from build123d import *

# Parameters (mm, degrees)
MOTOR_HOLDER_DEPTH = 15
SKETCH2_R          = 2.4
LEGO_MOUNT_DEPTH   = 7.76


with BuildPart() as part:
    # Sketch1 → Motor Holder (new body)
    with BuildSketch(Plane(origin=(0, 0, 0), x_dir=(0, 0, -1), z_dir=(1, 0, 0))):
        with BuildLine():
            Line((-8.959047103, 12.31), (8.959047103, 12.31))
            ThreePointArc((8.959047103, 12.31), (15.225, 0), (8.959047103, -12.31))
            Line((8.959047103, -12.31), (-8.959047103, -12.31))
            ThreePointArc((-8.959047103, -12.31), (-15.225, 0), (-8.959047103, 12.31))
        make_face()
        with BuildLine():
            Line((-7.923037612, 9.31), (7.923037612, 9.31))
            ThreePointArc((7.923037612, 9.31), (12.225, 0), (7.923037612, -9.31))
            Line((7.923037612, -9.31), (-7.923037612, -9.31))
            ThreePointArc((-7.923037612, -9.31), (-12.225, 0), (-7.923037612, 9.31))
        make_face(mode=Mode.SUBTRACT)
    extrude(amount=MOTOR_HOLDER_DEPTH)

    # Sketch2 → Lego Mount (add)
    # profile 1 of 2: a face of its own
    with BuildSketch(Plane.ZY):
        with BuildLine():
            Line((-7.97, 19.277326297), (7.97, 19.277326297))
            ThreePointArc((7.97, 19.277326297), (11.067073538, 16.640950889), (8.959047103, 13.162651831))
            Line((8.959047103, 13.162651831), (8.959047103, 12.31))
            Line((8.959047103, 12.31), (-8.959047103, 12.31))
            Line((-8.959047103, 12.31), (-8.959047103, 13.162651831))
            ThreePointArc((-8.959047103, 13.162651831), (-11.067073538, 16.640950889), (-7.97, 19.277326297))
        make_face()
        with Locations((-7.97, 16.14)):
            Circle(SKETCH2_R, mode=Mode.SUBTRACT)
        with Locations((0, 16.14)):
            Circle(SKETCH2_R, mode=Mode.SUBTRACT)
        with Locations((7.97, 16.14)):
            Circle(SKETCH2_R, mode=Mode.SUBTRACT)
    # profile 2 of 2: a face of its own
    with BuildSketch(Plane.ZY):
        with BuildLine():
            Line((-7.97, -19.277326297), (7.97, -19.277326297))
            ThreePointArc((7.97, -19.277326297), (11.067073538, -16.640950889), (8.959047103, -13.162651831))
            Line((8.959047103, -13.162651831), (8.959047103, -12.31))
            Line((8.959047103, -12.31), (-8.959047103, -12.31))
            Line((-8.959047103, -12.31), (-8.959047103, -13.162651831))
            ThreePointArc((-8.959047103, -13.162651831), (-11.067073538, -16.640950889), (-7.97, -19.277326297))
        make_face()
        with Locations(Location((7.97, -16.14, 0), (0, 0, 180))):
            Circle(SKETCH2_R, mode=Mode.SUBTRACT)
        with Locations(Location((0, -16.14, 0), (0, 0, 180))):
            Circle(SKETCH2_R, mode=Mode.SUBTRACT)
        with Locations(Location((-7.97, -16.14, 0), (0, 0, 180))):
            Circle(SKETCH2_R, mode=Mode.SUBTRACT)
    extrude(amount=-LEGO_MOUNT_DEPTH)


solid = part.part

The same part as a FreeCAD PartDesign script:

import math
import FreeCAD as App
import Part
import Sketcher
from FreeCAD import Vector

doc = App.newDocument("Part")
params = doc.addObject("Spreadsheet::Sheet", "Params")
for row, (alias, value) in enumerate([
    ("pad1_length", "15 mm"),
    ("sketch2_diameter", "4.8 mm"),
    ("sketch2_height", "15.94 mm"),
    ("pad2_length", "7.76 mm"),
], start=1):
    params.set(f"A{row}", alias)
    params.set(f"B{row}", "=" + value)
    params.setAlias(f"B{row}", alias)

body = doc.addObject("PartDesign::Body", "Body")

sketch1 = body.newObject("Sketcher::SketchObject", "Sketch")
sketch1.AttachmentSupport = (doc.getObject("YZ_Plane"), [""])
sketch1.MapMode = "FlatFace"
sketch1.addGeometry([
    Part.LineSegment(Vector(12, -9, 0), Vector(12, 9, 0)),
    Part.ArcOfCircle(Part.Circle(Vector(0, 0, 0), Vector(0, 0, 1), 15), math.radians(36), math.radians(144)),
    Part.LineSegment(Vector(-12, 9, 0), Vector(-12, -9, 0)),
    Part.ArcOfCircle(Part.Circle(Vector(0, 0, 0), Vector(0, 0, 1), 15), math.radians(-144), math.radians(-36)),
    Part.LineSegment(Vector(9, 8, 0), Vector(9, -8, 0)),
    Part.ArcOfCircle(Part.Circle(Vector(0, 0, 0), Vector(0, 0, 1), 12), math.radians(-140), math.radians(-40)),
    Part.LineSegment(Vector(-9, -8, 0), Vector(-9, 8, 0)),
    Part.ArcOfCircle(Part.Circle(Vector(0, 0, 0), Vector(0, 0, 1), 12), math.radians(40), math.radians(140)),
], False)
sketch1.addConstraint([
    Sketcher.Constraint("Coincident", 0, 2, 1, 1),
    Sketcher.Constraint("Coincident", 1, 2, 2, 1),
    Sketcher.Constraint("Coincident", 2, 2, 3, 1),
    Sketcher.Constraint("Coincident", 3, 2, 0, 1),
    Sketcher.Constraint("Coincident", 4, 2, 5, 2),
    Sketcher.Constraint("Coincident", 5, 1, 6, 1),
    Sketcher.Constraint("Coincident", 6, 2, 7, 2),
    Sketcher.Constraint("Coincident", 7, 1, 4, 1),
    Sketcher.Constraint("Vertical", 0),
    Sketcher.Constraint("Vertical", 2),
    Sketcher.Constraint("Vertical", 4),
    Sketcher.Constraint("Vertical", 6),
    Sketcher.Constraint("Coincident", 1, 3, -1, 1),
    Sketcher.Constraint("Coincident", 3, 3, -1, 1),
    Sketcher.Constraint("Coincident", 5, 3, -1, 1),
    Sketcher.Constraint("Coincident", 7, 3, -1, 1),
    Sketcher.Constraint("Equal", 1, 3),
    Sketcher.Constraint("Equal", 5, 7),
    Sketcher.Constraint("Horizontal", 0, 2, 1, 2),
    Sketcher.Constraint("Horizontal", 4, 2, 5, 1),
    Sketcher.Constraint("Radius", 1, 15.225),
    Sketcher.Constraint("Radius", 5, 12.225),
    Sketcher.Constraint("DistanceX", 4, 2, 3, 2, 3.0),
    Sketcher.Constraint("DistanceX", -1, 1, 0, 2, 12.31),
])
pad1 = body.newObject("PartDesign::Pad", "Pad")
pad1.Profile = sketch1
pad1.setExpression("Length", "Params.pad1_length")

sketch2 = body.newObject("Sketcher::SketchObject", "Sketch001")
sketch2.AttachmentSupport = (doc.getObject("YZ_Plane"), [""])
sketch2.MapMode = "FlatFace"
sketch2.addGeometry([
    Part.LineSegment(Vector(19.3, 8, 0), Vector(19.3, -8, 0)),
    Part.ArcOfCircle(Part.Circle(Vector(16.1, -8, 0), Vector(0, 0, 1), 3.1), math.radians(-162), math.radians(0)),
    Part.LineSegment(Vector(13.2, -9, 0), Vector(12.3, -9, 0)),
    Part.LineSegment(Vector(12.3, -9, 0), Vector(12.3, 9, 0)),
    Part.LineSegment(Vector(12.3, 9, 0), Vector(13.2, 9, 0)),
    Part.ArcOfCircle(Part.Circle(Vector(16.1, 8, 0), Vector(0, 0, 1), 3.1), math.radians(0), math.radians(162)),
    Part.Circle(Vector(16.1, 8, 0), Vector(0, 0, 1), 2.4),
    Part.Circle(Vector(16.1, 0, 0), Vector(0, 0, 1), 2.4),
    Part.Circle(Vector(16.1, -8, 0), Vector(0, 0, 1), 2.4),
    Part.LineSegment(Vector(-19.3, -8, 0), Vector(-19.3, 8, 0)),
    Part.ArcOfCircle(Part.Circle(Vector(-16.1, 8, 0), Vector(0, 0, 1), 3.1), math.radians(18), math.radians(180)),
    Part.LineSegment(Vector(-13.2, 9, 0), Vector(-12.3, 9, 0)),
    Part.LineSegment(Vector(-12.3, 9, 0), Vector(-12.3, -9, 0)),
    Part.LineSegment(Vector(-12.3, -9, 0), Vector(-13.2, -9, 0)),
    Part.ArcOfCircle(Part.Circle(Vector(-16.1, -8, 0), Vector(0, 0, 1), 3.1), math.radians(180), math.radians(342)),
    Part.Circle(Vector(-16.1, -8, 0), Vector(0, 0, 1), 2.4),
    Part.Circle(Vector(-16.1, 0, 0), Vector(0, 0, 1), 2.4),
    Part.Circle(Vector(-16.1, 8, 0), Vector(0, 0, 1), 2.4),
], False)
sketch2.addConstraint([
    Sketcher.Constraint("Tangent", 0, 2, 1, 2),
    Sketcher.Constraint("Coincident", 1, 1, 2, 1),
    Sketcher.Constraint("Coincident", 2, 2, 3, 1),
    Sketcher.Constraint("Coincident", 3, 2, 4, 1),
    Sketcher.Constraint("Coincident", 4, 2, 5, 2),
    Sketcher.Constraint("Tangent", 5, 1, 0, 1),
    Sketcher.Constraint("Tangent", 9, 2, 10, 2),
    Sketcher.Constraint("Coincident", 10, 1, 11, 1),
    Sketcher.Constraint("Coincident", 11, 2, 12, 1),
    Sketcher.Constraint("Coincident", 12, 2, 13, 1),
    Sketcher.Constraint("Coincident", 13, 2, 14, 2),
    Sketcher.Constraint("Tangent", 14, 1, 9, 1),
    Sketcher.Constraint("Vertical", 0),
    Sketcher.Constraint("Horizontal", 2),
    Sketcher.Constraint("Vertical", 3),
    Sketcher.Constraint("Horizontal", 4),
    Sketcher.Constraint("Vertical", 9),
    Sketcher.Constraint("Horizontal", 11),
    Sketcher.Constraint("Vertical", 12),
    Sketcher.Constraint("Horizontal", 13),
    Sketcher.Constraint("Coincident", 6, 3, 5, 3),
    Sketcher.Constraint("Coincident", 8, 3, 1, 3),
    Sketcher.Constraint("Coincident", 15, 3, 14, 3),
    Sketcher.Constraint("Coincident", 17, 3, 10, 3),
    Sketcher.Constraint("Equal", 1, 5),
    Sketcher.Constraint("Equal", 6, 7),
    Sketcher.Constraint("Equal", 7, 8),
    Sketcher.Constraint("Equal", 5, 10),
    Sketcher.Constraint("Equal", 10, 14),
    Sketcher.Constraint("Equal", 8, 15),
    Sketcher.Constraint("Equal", 15, 16),
    Sketcher.Constraint("Equal", 16, 17),
    Sketcher.Constraint("Symmetric", 1, 3, 10, 3, -1, 1),
    Sketcher.Constraint("Symmetric", 7, 3, 16, 3, -1, 1),
    Sketcher.Constraint("Symmetric", 2, 2, 11, 2, -1, 1),
    Sketcher.Constraint("Symmetric", 4, 2, 13, 2, -1, 1),
    Sketcher.Constraint("Symmetric", 4, 2, 10, 1, -2),
    Sketcher.Constraint("PointOnObject", 7, 3, -1),
    Sketcher.Constraint("Vertical", 6, 3, 7, 3),
    Sketcher.Constraint("Diameter", 6, 4.8),
    Sketcher.Constraint("DistanceY", 0, 2, 0, 1, 15.94),
    Sketcher.Constraint("DistanceX", -1, 1, 1, 3, 16.14),
    Sketcher.Constraint("DistanceX", -1, 1, 2, 2, 12.31),
    Sketcher.Constraint("Radius", 1, 3.137326),
    Sketcher.Constraint("DistanceX", 2, 2, 2, 1, 0.852652),
])
sketch2.setExpression("Constraints[39]", "Params.sketch2_diameter")
sketch2.setExpression("Constraints[40]", "Params.sketch2_height")
pad2 = body.newObject("PartDesign::Pad", "Pad001")
pad2.Profile = sketch2
pad2.setExpression("Length", "Params.pad2_length")

doc.recompute()
